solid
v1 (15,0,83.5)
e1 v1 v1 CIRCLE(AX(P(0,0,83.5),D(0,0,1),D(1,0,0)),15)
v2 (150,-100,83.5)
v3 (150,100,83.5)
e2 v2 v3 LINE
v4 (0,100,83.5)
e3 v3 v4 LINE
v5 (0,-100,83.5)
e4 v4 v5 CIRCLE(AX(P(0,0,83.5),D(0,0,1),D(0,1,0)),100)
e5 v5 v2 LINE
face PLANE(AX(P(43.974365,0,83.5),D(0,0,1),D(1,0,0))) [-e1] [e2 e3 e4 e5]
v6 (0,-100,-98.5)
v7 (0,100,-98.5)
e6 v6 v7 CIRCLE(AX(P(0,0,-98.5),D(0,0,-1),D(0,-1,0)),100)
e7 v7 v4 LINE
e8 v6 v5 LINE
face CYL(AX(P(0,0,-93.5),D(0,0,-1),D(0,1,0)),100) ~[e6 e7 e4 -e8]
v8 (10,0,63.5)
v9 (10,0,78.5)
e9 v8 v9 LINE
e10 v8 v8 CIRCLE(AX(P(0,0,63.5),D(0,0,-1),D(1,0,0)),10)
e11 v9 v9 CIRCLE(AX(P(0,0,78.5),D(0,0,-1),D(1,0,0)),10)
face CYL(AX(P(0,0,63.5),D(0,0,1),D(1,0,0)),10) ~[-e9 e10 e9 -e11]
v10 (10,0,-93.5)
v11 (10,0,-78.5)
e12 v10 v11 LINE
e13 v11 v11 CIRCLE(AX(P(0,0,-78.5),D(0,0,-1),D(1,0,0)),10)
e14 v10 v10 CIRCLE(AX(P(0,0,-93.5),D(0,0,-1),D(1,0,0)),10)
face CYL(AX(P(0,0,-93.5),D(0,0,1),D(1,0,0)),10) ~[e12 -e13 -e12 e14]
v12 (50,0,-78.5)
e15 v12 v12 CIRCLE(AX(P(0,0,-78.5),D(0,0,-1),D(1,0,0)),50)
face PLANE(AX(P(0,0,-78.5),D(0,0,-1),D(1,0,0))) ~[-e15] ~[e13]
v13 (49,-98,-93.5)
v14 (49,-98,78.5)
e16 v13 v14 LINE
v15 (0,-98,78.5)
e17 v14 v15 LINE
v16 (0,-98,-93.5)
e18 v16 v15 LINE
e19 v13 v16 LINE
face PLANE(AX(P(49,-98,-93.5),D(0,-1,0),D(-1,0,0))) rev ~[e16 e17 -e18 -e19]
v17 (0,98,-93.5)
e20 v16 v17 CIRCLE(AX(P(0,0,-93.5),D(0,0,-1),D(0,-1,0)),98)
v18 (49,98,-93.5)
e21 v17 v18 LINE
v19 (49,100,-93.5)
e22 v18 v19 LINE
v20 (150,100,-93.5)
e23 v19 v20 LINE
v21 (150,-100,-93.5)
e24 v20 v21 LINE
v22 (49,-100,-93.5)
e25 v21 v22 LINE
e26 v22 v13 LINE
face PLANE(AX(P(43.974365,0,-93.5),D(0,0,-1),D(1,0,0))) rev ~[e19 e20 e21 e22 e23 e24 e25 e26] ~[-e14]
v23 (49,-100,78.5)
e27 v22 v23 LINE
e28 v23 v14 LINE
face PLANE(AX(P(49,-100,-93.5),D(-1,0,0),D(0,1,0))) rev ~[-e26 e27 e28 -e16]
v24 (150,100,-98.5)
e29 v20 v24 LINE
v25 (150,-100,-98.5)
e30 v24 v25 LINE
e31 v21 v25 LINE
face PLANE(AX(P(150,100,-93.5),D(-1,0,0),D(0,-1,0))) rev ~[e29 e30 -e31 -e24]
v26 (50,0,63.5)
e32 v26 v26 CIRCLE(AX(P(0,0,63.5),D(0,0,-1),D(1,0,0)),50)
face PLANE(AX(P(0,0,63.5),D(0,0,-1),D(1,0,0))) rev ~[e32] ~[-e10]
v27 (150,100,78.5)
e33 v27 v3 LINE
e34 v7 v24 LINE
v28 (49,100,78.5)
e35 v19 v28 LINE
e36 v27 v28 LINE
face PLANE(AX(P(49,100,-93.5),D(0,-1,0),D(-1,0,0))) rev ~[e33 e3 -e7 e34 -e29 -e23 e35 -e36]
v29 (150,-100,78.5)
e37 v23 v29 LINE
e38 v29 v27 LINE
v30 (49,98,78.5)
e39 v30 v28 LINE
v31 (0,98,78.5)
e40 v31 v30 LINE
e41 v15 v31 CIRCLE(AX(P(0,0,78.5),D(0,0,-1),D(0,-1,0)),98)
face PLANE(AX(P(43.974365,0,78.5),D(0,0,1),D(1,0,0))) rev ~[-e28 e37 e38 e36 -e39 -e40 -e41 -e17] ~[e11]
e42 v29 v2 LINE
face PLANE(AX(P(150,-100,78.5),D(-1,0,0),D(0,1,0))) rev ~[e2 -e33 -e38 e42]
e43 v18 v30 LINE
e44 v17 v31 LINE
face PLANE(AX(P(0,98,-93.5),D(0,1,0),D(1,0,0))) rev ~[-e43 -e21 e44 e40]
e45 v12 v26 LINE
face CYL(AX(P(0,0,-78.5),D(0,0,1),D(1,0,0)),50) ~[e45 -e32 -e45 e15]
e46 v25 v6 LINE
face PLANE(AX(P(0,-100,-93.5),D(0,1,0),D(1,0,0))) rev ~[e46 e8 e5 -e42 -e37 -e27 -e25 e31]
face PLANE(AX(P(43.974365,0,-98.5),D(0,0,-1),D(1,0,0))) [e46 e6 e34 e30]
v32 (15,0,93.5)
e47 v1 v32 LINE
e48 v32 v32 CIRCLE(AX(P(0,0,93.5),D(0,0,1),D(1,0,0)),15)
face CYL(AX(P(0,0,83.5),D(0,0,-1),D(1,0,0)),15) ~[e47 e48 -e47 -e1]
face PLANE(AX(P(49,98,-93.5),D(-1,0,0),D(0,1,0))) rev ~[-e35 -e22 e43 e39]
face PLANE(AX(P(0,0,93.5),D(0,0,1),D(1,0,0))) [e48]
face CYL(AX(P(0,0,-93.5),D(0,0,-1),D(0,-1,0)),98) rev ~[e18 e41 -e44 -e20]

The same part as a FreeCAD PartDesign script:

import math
import FreeCAD as App
import Part
import Sketcher
from FreeCAD import Vector

doc = App.newDocument("Part")
body = doc.addObject("PartDesign::Body", "Body")

sketch1 = body.newObject("Sketcher::SketchObject", "Sketch")
sketch1.AttachmentSupport = (doc.getObject("XZ_Plane"), [""])
sketch1.MapMode = "FlatFace"
sketch1.addGeometry(Part.LineSegment(Vector(10, 78.5, 0), Vector(0, 78.5, 0)), False)
sketch1.addGeometry(Part.LineSegment(Vector(0, 78.5, 0), Vector(0, -93.5, 0)), False)
sketch1.addGeometry(Part.LineSegment(Vector(0, -93.5, 0), Vector(10, -93.5, 0)), False)
sketch1.addGeometry(Part.LineSegment(Vector(10, -93.5, 0), Vector(10, -78.5, 0)), False)
sketch1.addGeometry(Part.LineSegment(Vector(10, -78.5, 0), Vector(50, -78.5, 0)), False)
sketch1.addGeometry(Part.LineSegment(Vector(50, -78.5, 0), Vector(50, 63.5, 0)), False)
sketch1.addGeometry(Part.LineSegment(Vector(50, 63.5, 0), Vector(10, 63.5, 0)), False)
sketch1.addGeometry(Part.LineSegment(Vector(10, 63.5, 0), Vector(10, 78.5, 0)), False)
sketch1.addConstraint(Sketcher.Constraint("Coincident", 0, 2, 1, 1))
sketch1.addConstraint(Sketcher.Constraint("Coincident", 1, 2, 2, 1))
sketch1.addConstraint(Sketcher.Constraint("Coincident", 2, 2, 3, 1))
sketch1.addConstraint(Sketcher.Constraint("Coincident", 3, 2, 4, 1))
sketch1.addConstraint(Sketcher.Constraint("Coincident", 4, 2, 5, 1))
sketch1.addConstraint(Sketcher.Constraint("Coincident", 5, 2, 6, 1))
sketch1.addConstraint(Sketcher.Constraint("Coincident", 6, 2, 7, 1))
sketch1.addConstraint(Sketcher.Constraint("Coincident", 7, 2, 0, 1))
sketch1.addConstraint(Sketcher.Constraint("Horizontal", 0))
sketch1.addConstraint(Sketcher.Constraint("Vertical", 1))
sketch1.addConstraint(Sketcher.Constraint("Horizontal", 2))
sketch1.addConstraint(Sketcher.Constraint("Vertical", 3))
sketch1.addConstraint(Sketcher.Constraint("Horizontal", 4))
sketch1.addConstraint(Sketcher.Constraint("Vertical", 5))
sketch1.addConstraint(Sketcher.Constraint("Horizontal", 6))
sketch1.addConstraint(Sketcher.Constraint("Vertical", 7))
sketch1.addConstraint(Sketcher.Constraint("Symmetric", 3, 2, 7, 2, -1))
sketch1.addConstraint(Sketcher.Constraint("PointOnObject", 0, 2, -2))
sketch1.addConstraint(Sketcher.Constraint("Equal", 3, 7))
sketch1.addConstraint(Sketcher.Constraint("DistanceX", 0, 2, 0, 1, 10.0))
sketch1.addConstraint(Sketcher.Constraint("DistanceX", 4, 1, 4, 2, 40.0))
sketch1.addConstraint(Sketcher.Constraint("DistanceY", 1, 2, 1, 1, 172.0))
sketch1.addConstraint(Sketcher.Constraint("DistanceY", 3, 1, 3, 2, 15.0))
revolution = body.newObject("PartDesign::Revolution", "Revolution")
revolution.Profile = sketch1
revolution.ReferenceAxis = (sketch1, ["V_Axis"])
revolution.Angle = 360

sketch2 = body.newObject("Sketcher::SketchObject", "Sketch001")
sketch2.AttachmentSupport = (doc.getObject("XY_Plane"), [""])
sketch2.MapMode = "FlatFace"
sketch2.AttachmentOffset = App.Placement(Vector(0, 0, 78.5), App.Rotation())
sketch2.addGeometry(Part.LineSegment(Vector(150, 100, 0), Vector(0, 100, 0)), False)
sketch2.addGeometry(Part.ArcOfCircle(Part.Circle(Vector(0, 0, 0), Vector(0, 0, 1), 100), math.radians(90), math.radians(270)), False)
sketch2.addGeometry(Part.LineSegment(Vector(0, -100, 0), Vector(150, -100, 0)), False)
sketch2.addGeometry(Part.LineSegment(Vector(150, -100, 0), Vector(150, 100, 0)), False)
sketch2.addConstraint(Sketcher.Constraint("Tangent", 0, 2, 1, 1))
sketch2.addConstraint(Sketcher.Constraint("Tangent", 1, 2, 2, 1))
sketch2.addConstraint(Sketcher.Constraint("Coincident", 2, 2, 3, 1))
sketch2.addConstraint(Sketcher.Constraint("Coincident", 3, 2, 0, 1))
sketch2.addConstraint(Sketcher.Constraint("Horizontal", 0))
sketch2.addConstraint(Sketcher.Constraint("Horizontal", 2))
sketch2.addConstraint(Sketcher.Constraint("Vertical", 3))
sketch2.addConstraint(Sketcher.Constraint("Coincident", 1, 3, -1, 1))
sketch2.addConstraint(Sketcher.Constraint("Radius", 1, 100.0))
sketch2.addConstraint(Sketcher.Constraint("DistanceX", 0, 2, 0, 1, 150.0))
pad1 = body.newObject("PartDesign::Pad", "Pad")
pad1.Profile = sketch2
pad1.Length = 5

sketch3 = body.newObject("Sketcher::SketchObject", "Sketch002")
sketch3.AttachmentSupport = (doc.getObject("XY_Plane"), [""])
sketch3.MapMode = "FlatFace"
sketch3.AttachmentOffset = App.Placement(Vector(0, 0, -93.5), App.Rotation())
sketch3.addGeometry(Part.ArcOfCircle(Part.Circle(Vector(0, 0, 0), Vector(0, 0, 1), 100), math.radians(90), math.radians(270)), False)
sketch3.addGeometry(Part.LineSegment(Vector(0, 100, 0), Vector(150, 100, 0)), False)
sketch3.addGeometry(Part.LineSegment(Vector(150, 100, 0), Vector(150, -100, 0)), False)
sketch3.addGeometry(Part.LineSegment(Vector(150, -100, 0), Vector(0, -100, 0)), False)
sketch3.addConstraint(Sketcher.Constraint("Tangent", 0, 1, 1, 1))
sketch3.addConstraint(Sketcher.Constraint("Coincident", 1, 2, 2, 1))
sketch3.addConstraint(Sketcher.Constraint("Coincident", 2, 2, 3, 1))
sketch3.addConstraint(Sketcher.Constraint("Tangent", 3, 2, 0, 2))
sketch3.addConstraint(Sketcher.Constraint("Horizontal", 1))
sketch3.addConstraint(Sketcher.Constraint("Vertical", 2))
sketch3.addConstraint(Sketcher.Constraint("Horizontal", 3))
sketch3.addConstraint(Sketcher.Constraint("Coincident", 0, 3, -1, 1))
sketch3.addConstraint(Sketcher.Constraint("Radius", 0, 100.0))
sketch3.addConstraint(Sketcher.Constraint("DistanceX", 1, 1, 1, 2, 150.0))
pad2 = body.newObject("PartDesign::Pad", "Pad001")
pad2.Profile = sketch3
pad2.Length = 5
pad2.Reversed = True

sketch4 = body.newObject("Sketcher::SketchObject", "Sketch003")
sketch4.AttachmentSupport = (doc.getObject("XY_Plane"), [""])
sketch4.MapMode = "FlatFace"
sketch4.AttachmentOffset = App.Placement(Vector(0, 0, -93.5), App.Rotation())
sketch4.addGeometry(Part.LineSegment(Vector(49, 100, 0), Vector(0, 100, 0)), False)
sketch4.addGeometry(Part.ArcOfCircle(Part.Circle(Vector(0, 0, 0), Vector(0, 0, 1), 100), math.radians(90), math.radians(270)), False)
sketch4.addGeometry(Part.LineSegment(Vector(0, -100, 0), Vector(49, -100, 0)), False)
sketch4.addGeometry(Part.LineSegment(Vector(49, -100, 0), Vector(49, -98, 0)), False)
sketch4.addGeometry(Part.LineSegment(Vector(49, -98, 0), Vector(0, -98, 0)), False)
sketch4.addGeometry(Part.ArcOfCircle(Part.Circle(Vector(0, 0, 0), Vector(0, 0, 1), 98), math.radians(90), math.radians(270)), False)
sketch4.addGeometry(Part.LineSegment(Vector(0, 98, 0), Vector(49, 98, 0)), False)
sketch4.addGeometry(Part.LineSegment(Vector(49, 98, 0), Vector(49, 100, 0)), False)
sketch4.addConstraint(Sketcher.Constraint("Tangent", 0, 2, 1, 1))
sketch4.addConstraint(Sketcher.Constraint("Tangent", 1, 2, 2, 1))
sketch4.addConstraint(Sketcher.Constraint("Coincident", 2, 2, 3, 1))
sketch4.addConstraint(Sketcher.Constraint("Coincident", 3, 2, 4, 1))
sketch4.addConstraint(Sketcher.Constraint("Tangent", 4, 2, 5, 2))
sketch4.addConstraint(Sketcher.Constraint("Tangent", 5, 1, 6, 1))
sketch4.addConstraint(Sketcher.Constraint("Coincident", 6, 2, 7, 1))
sketch4.addConstraint(Sketcher.Constraint("Coincident", 7, 2, 0, 1))
sketch4.addConstraint(Sketcher.Constraint("Horizontal", 0))
sketch4.addConstraint(Sketcher.Constraint("Horizontal", 2))
sketch4.addConstraint(Sketcher.Constraint("Vertical", 3))
sketch4.addConstraint(Sketcher.Constraint("Horizontal", 4))
sketch4.addConstraint(Sketcher.Constraint("Horizontal", 6))
sketch4.addConstraint(Sketcher.Constraint("Vertical", 7))
sketch4.addConstraint(Sketcher.Constraint("Coincident", 1, 3, -1, 1))
sketch4.addConstraint(Sketcher.Constraint("Coincident", 5, 3, -1, 1))
sketch4.addConstraint(Sketcher.Constraint("Vertical", 3, 2, 6, 2))
sketch4.addConstraint(Sketcher.Constraint("Radius", 1, 100.0))
sketch4.addConstraint(Sketcher.Constraint("Radius", 5, 98.0))
sketch4.addConstraint(Sketcher.Constraint("DistanceX", 0, 2, 0, 1, 49.0))
pad3 = body.newObject("PartDesign::Pad", "Pad002")
pad3.Profile = sketch4
pad3.Type = "UpToLast"

sketch5 = body.newObject("Sketcher::SketchObject", "Sketch004")
sketch5.AttachmentSupport = (doc.getObject("XY_Plane"), [""])
sketch5.MapMode = "FlatFace"
sketch5.AttachmentOffset = App.Placement(Vector(0, 0, 83.5), App.Rotation())
sketch5.addGeometry(Part.Circle(Vector(0, 0, 0), Vector(0, 0, 1), 15), False)
sketch5.addConstraint(Sketcher.Constraint("Coincident", 0, 3, -1, 1))
sketch5.addConstraint(Sketcher.Constraint("Diameter", 0, 30.0))
pad4 = body.newObject("PartDesign::Pad", "Pad003")
pad4.Profile = sketch5
pad4.Length = 10

doc.recompute()
